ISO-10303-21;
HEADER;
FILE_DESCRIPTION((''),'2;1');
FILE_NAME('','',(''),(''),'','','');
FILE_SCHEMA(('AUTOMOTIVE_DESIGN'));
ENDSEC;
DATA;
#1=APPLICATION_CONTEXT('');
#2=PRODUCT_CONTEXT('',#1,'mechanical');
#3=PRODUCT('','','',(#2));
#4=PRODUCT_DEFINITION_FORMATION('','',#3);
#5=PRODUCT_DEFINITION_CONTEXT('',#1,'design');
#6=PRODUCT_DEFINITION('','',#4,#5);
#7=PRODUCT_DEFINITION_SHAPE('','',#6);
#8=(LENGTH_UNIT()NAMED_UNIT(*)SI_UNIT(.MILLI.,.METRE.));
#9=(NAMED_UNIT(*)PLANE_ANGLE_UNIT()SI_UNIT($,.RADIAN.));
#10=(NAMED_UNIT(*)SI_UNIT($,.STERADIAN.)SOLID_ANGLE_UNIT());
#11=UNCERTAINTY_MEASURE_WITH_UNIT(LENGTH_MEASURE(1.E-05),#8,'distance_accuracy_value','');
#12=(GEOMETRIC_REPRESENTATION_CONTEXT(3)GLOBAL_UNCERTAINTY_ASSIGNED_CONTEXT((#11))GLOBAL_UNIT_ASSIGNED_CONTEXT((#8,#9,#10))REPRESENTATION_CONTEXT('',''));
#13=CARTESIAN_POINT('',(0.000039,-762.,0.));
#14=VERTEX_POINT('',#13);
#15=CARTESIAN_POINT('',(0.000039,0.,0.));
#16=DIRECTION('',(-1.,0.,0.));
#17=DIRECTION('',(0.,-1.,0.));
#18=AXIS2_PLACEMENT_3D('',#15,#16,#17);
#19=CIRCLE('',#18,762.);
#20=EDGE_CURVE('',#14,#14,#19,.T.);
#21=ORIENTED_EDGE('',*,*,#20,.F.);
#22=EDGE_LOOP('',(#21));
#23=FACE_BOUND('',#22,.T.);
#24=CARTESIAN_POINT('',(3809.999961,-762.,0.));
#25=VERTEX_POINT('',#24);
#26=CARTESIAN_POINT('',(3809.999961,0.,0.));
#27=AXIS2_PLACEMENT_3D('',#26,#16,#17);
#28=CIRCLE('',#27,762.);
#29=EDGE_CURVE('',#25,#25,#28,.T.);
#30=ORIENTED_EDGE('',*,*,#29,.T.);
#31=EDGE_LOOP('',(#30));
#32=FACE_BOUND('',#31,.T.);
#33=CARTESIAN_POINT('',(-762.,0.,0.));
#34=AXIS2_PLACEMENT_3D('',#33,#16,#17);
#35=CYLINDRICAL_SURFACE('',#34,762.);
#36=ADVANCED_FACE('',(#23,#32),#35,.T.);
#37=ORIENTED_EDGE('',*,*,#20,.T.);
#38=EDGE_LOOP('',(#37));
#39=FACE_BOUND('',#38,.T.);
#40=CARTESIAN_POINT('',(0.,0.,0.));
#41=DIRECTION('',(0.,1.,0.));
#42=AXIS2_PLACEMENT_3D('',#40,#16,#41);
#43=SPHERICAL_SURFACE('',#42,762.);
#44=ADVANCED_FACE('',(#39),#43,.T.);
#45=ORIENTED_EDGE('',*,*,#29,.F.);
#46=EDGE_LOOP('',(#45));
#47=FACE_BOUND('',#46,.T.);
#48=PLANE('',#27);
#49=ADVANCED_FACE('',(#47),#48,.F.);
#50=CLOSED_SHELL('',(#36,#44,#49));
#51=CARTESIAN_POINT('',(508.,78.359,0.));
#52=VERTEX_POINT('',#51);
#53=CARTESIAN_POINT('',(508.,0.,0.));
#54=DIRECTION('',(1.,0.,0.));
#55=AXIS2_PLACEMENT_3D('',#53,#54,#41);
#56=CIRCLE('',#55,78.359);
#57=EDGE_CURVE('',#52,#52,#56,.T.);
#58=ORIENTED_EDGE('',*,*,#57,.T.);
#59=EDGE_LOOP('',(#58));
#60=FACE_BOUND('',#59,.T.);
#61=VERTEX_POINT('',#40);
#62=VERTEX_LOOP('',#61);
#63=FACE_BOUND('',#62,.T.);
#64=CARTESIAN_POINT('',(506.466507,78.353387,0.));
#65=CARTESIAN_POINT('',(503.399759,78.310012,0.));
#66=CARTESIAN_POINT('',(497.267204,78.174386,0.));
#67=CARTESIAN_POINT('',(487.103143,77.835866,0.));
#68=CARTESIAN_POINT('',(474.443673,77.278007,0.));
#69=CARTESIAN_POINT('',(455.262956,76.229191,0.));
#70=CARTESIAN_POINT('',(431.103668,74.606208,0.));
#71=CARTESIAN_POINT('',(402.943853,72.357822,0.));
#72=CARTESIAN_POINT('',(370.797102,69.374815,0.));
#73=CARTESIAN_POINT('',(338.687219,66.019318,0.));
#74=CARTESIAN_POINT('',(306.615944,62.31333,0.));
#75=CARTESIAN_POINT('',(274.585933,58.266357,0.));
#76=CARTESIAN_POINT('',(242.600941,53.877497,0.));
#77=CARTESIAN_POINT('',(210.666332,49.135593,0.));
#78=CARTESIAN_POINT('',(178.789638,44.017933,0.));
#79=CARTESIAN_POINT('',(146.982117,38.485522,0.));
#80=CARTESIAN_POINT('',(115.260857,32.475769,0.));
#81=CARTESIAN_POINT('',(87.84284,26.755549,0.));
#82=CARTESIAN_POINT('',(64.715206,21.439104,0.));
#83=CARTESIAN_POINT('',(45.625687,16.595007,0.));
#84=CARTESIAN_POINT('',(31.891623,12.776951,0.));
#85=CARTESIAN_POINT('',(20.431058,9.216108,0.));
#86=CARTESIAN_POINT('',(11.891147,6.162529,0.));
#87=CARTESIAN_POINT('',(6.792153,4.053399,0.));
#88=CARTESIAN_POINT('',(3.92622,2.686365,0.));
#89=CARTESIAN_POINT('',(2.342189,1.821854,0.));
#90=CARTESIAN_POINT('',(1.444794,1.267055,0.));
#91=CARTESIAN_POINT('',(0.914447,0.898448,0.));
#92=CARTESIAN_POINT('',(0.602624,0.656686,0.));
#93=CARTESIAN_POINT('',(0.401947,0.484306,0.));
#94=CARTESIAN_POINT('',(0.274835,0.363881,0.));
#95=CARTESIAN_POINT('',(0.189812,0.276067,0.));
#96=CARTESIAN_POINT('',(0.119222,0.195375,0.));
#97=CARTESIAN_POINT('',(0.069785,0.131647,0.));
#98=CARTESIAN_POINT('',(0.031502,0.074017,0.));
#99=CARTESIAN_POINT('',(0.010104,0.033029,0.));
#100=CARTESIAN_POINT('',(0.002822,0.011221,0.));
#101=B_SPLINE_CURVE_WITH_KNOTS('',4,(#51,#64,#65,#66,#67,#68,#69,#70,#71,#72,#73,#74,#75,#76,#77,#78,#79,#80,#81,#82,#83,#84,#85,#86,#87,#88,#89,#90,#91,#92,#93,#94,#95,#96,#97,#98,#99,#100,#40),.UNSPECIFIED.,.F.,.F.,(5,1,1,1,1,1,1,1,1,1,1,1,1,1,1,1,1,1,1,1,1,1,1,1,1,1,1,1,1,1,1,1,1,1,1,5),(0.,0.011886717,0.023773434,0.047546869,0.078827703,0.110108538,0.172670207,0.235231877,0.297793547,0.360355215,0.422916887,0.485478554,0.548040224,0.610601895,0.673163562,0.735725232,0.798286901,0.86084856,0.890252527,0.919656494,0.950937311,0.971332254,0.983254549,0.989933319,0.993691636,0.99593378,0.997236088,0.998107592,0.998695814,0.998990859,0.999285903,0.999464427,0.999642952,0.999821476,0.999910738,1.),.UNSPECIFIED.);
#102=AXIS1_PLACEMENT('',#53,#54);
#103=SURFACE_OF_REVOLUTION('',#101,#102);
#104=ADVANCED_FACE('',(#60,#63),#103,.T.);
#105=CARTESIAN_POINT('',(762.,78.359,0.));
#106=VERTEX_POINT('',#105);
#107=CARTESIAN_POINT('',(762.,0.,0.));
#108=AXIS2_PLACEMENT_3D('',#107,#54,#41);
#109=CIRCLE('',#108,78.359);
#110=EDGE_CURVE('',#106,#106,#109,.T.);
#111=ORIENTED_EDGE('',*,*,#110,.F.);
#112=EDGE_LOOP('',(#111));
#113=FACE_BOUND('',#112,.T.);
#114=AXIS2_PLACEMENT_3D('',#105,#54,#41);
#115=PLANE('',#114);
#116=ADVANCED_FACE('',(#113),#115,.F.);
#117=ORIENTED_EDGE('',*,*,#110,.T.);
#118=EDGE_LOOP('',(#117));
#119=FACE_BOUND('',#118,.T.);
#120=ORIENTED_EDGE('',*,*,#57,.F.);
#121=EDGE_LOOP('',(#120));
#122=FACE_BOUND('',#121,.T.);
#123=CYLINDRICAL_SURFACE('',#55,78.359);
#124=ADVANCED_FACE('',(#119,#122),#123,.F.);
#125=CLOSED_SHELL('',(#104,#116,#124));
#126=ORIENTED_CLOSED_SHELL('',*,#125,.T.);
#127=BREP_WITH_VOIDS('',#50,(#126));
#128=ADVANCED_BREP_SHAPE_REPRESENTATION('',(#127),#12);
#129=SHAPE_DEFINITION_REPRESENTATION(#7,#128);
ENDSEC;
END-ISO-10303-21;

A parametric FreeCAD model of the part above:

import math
import FreeCAD as App
import Part
import Sketcher

V = App.Vector
Q = App.Units.Quantity

doc = App.newDocument("Part")
body = doc.addObject("PartDesign::Body", "Body")

# Sketch on XY plane
sketch1 = body.newObject("Sketcher::SketchObject", "Sketch")
sketch1.AttachmentSupport = (doc.getObject("XY_Plane"), [""])
sketch1.MapMode = "FlatFace"
sketch1.addGeometry(Part.BSplineCurve([V(0, 0, 0), V(0.002822, 0.011221, 0), V(0.010104, 0.033029, 0), V(0.031502, 0.074017, 0), V(0.069785, 0.131647, 0), V(0.119222, 0.195375, 0), V(0.189812, 0.276067, 0), V(0.274835, 0.363881, 0), V(0.401947, 0.484306, 0), V(0.602624, 0.656686, 0), V(0.914447, 0.898448, 0), V(1.444794, 1.267055, 0), V(2.342189, 1.821854, 0), V(3.92622, 2.686365, 0), V(6.792153, 4.053399, 0), V(11.891147, 6.162529, 0), V(20.431058, 9.216108, 0), V(31.891623, 12.776951, 0), V(45.625687, 16.595007, 0), V(64.715206, 21.439104, 0), V(87.84284, 26.755549, 0), V(115.260857, 32.475769, 0), V(146.982117, 38.485522, 0), V(178.789638, 44.017933, 0), V(210.666332, 49.135593, 0), V(242.600941, 53.877497, 0), V(274.585933, 58.266357, 0), V(306.615944, 62.31333, 0), V(338.687219, 66.019318, 0), V(370.797102, 69.374815, 0), V(402.943853, 72.357822, 0), V(431.103668, 74.606208, 0), V(455.262956, 76.229191, 0), V(474.443673, 77.278007, 0), V(487.103143, 77.835866, 0), V(497.267204, 78.174386, 0), V(503.399759, 78.310012, 0), V(506.466507, 78.353387, 0), V(508, 78.359, 0)], [5, 1, 1, 1, 1, 1, 1, 1, 1, 1, 1, 1, 1, 1, 1, 1, 1, 1, 1, 1, 1, 1, 1, 1, 1, 1, 1, 1, 1, 1, 1, 1, 1, 1, 1, 5], [0, 0.000089262, 0.000178524, 0.000357048, 0.000535573, 0.000714097, 0.001009141, 0.001304186, 0.001892408, 0.002763912, 0.00406622, 0.006308364, 0.010066681, 0.016745451, 0.028667746, 0.049062689, 0.080343506, 0.109747473, 0.13915144, 0.201713099, 0.264274768, 0.326836438, 0.389398105, 0.451959776, 0.514521446, 0.577083113, 0.639644785, 0.702206453, 0.764768123, 0.827329793, 0.889891462, 0.921172297, 0.952453131, 0.976226566, 0.988113283, 1], False, 4, [1, 1, 1, 1, 1, 1, 1, 1, 1, 1, 1, 1, 1, 1, 1, 1, 1, 1, 1, 1, 1, 1, 1, 1, 1, 1, 1, 1, 1, 1, 1, 1, 1, 1, 1, 1, 1, 1, 1], False), False)
sketch1.addGeometry(Part.LineSegment(V(0, 0, 0), V(762, 0, 0)), False)
sketch1.addGeometry(Part.LineSegment(V(762, 0, 0), V(762, 78.359, 0)), False)
sketch1.addGeometry(Part.LineSegment(V(762, 78.359, 0), V(508, 78.359, 0)), False)
sketch1.addConstraint(Sketcher.Constraint("Block", 0))
sketch1.addConstraint(Sketcher.Constraint("Coincident", 0, 1, 1, 1))
sketch1.addConstraint(Sketcher.Constraint("Coincident", 1, 2, 2, 1))
sketch1.addConstraint(Sketcher.Constraint("Coincident", 2, 2, 3, 1))
sketch1.addConstraint(Sketcher.Constraint("Coincident", 3, 2, 0, 2))
sketch1.addConstraint(Sketcher.Constraint("Horizontal", 1))
sketch1.addConstraint(Sketcher.Constraint("Vertical", 2))
sketch1.addConstraint(Sketcher.Constraint("Horizontal", 3))
sketch1.addConstraint(Sketcher.Constraint("DistanceX", 1, 1, 1, 2, Q("30 in")))
revolution = body.newObject("PartDesign::Revolution", "Revolution")
revolution.Profile = sketch1
revolution.ReferenceAxis = (sketch1, ["H_Axis"])
revolution.Angle = 360
body2 = doc.addObject("PartDesign::Body", "Body001")

# Sketch on XY plane
sketch2 = body2.newObject("Sketcher::SketchObject", "Sketch001")
sketch2.AttachmentSupport = (doc.getObject("XY_Plane001"), [""])
sketch2.MapMode = "FlatFace"
sketch2.addGeometry(Part.LineSegment(V(-762, 0, 0), V(3810, 0, 0)), False)
sketch2.addGeometry(Part.LineSegment(V(3810, 0, 0), V(3810, 762, 0)), False)
sketch2.addGeometry(Part.LineSegment(V(3810, 762, 0), V(0, 762, 0)), False)
sketch2.addGeometry(Part.ArcOfCircle(Part.Circle(V(0, 0, 0), V(0, 0, 1), 762), math.radians(90), math.radians(180)), False)
sketch2.addConstraint(Sketcher.Constraint("Coincident", 0, 2, 1, 1))
sketch2.addConstraint(Sketcher.Constraint("Coincident", 1, 2, 2, 1))
sketch2.addConstraint(Sketcher.Constraint("Coincident", 2, 2, 3, 1))
sketch2.addConstraint(Sketcher.Constraint("Coincident", 3, 2, 0, 1))
sketch2.addConstraint(Sketcher.Constraint("Horizontal", 0))
sketch2.addConstraint(Sketcher.Constraint("Vertical", 1))
sketch2.addConstraint(Sketcher.Constraint("Horizontal", 2))
sketch2.addConstraint(Sketcher.Constraint("Coincident", 3, 3, -1, 1))
sketch2.addConstraint(Sketcher.Constraint("PointOnObject", 0, 2, -1))
sketch2.addConstraint(Sketcher.Constraint("Radius", 3, Q("30 in")))
sketch2.addConstraint(Sketcher.Constraint("DistanceX", 0, 1, 0, 2, 4571.999961))
sketch2.addConstraint(Sketcher.Constraint("DistanceX", 2, 2, 2, 1, 3809.999923))
revolution2 = body2.newObject("PartDesign::Revolution", "Revolution001")
revolution2.Profile = sketch2
revolution2.ReferenceAxis = (sketch2, ["H_Axis"])
revolution2.Angle = 360
doc.recompute()

boolean = body2.newObject("PartDesign::Boolean", "Boolean")
boolean.Type = "Cut"
boolean.addObjects([body])

doc.recompute()
